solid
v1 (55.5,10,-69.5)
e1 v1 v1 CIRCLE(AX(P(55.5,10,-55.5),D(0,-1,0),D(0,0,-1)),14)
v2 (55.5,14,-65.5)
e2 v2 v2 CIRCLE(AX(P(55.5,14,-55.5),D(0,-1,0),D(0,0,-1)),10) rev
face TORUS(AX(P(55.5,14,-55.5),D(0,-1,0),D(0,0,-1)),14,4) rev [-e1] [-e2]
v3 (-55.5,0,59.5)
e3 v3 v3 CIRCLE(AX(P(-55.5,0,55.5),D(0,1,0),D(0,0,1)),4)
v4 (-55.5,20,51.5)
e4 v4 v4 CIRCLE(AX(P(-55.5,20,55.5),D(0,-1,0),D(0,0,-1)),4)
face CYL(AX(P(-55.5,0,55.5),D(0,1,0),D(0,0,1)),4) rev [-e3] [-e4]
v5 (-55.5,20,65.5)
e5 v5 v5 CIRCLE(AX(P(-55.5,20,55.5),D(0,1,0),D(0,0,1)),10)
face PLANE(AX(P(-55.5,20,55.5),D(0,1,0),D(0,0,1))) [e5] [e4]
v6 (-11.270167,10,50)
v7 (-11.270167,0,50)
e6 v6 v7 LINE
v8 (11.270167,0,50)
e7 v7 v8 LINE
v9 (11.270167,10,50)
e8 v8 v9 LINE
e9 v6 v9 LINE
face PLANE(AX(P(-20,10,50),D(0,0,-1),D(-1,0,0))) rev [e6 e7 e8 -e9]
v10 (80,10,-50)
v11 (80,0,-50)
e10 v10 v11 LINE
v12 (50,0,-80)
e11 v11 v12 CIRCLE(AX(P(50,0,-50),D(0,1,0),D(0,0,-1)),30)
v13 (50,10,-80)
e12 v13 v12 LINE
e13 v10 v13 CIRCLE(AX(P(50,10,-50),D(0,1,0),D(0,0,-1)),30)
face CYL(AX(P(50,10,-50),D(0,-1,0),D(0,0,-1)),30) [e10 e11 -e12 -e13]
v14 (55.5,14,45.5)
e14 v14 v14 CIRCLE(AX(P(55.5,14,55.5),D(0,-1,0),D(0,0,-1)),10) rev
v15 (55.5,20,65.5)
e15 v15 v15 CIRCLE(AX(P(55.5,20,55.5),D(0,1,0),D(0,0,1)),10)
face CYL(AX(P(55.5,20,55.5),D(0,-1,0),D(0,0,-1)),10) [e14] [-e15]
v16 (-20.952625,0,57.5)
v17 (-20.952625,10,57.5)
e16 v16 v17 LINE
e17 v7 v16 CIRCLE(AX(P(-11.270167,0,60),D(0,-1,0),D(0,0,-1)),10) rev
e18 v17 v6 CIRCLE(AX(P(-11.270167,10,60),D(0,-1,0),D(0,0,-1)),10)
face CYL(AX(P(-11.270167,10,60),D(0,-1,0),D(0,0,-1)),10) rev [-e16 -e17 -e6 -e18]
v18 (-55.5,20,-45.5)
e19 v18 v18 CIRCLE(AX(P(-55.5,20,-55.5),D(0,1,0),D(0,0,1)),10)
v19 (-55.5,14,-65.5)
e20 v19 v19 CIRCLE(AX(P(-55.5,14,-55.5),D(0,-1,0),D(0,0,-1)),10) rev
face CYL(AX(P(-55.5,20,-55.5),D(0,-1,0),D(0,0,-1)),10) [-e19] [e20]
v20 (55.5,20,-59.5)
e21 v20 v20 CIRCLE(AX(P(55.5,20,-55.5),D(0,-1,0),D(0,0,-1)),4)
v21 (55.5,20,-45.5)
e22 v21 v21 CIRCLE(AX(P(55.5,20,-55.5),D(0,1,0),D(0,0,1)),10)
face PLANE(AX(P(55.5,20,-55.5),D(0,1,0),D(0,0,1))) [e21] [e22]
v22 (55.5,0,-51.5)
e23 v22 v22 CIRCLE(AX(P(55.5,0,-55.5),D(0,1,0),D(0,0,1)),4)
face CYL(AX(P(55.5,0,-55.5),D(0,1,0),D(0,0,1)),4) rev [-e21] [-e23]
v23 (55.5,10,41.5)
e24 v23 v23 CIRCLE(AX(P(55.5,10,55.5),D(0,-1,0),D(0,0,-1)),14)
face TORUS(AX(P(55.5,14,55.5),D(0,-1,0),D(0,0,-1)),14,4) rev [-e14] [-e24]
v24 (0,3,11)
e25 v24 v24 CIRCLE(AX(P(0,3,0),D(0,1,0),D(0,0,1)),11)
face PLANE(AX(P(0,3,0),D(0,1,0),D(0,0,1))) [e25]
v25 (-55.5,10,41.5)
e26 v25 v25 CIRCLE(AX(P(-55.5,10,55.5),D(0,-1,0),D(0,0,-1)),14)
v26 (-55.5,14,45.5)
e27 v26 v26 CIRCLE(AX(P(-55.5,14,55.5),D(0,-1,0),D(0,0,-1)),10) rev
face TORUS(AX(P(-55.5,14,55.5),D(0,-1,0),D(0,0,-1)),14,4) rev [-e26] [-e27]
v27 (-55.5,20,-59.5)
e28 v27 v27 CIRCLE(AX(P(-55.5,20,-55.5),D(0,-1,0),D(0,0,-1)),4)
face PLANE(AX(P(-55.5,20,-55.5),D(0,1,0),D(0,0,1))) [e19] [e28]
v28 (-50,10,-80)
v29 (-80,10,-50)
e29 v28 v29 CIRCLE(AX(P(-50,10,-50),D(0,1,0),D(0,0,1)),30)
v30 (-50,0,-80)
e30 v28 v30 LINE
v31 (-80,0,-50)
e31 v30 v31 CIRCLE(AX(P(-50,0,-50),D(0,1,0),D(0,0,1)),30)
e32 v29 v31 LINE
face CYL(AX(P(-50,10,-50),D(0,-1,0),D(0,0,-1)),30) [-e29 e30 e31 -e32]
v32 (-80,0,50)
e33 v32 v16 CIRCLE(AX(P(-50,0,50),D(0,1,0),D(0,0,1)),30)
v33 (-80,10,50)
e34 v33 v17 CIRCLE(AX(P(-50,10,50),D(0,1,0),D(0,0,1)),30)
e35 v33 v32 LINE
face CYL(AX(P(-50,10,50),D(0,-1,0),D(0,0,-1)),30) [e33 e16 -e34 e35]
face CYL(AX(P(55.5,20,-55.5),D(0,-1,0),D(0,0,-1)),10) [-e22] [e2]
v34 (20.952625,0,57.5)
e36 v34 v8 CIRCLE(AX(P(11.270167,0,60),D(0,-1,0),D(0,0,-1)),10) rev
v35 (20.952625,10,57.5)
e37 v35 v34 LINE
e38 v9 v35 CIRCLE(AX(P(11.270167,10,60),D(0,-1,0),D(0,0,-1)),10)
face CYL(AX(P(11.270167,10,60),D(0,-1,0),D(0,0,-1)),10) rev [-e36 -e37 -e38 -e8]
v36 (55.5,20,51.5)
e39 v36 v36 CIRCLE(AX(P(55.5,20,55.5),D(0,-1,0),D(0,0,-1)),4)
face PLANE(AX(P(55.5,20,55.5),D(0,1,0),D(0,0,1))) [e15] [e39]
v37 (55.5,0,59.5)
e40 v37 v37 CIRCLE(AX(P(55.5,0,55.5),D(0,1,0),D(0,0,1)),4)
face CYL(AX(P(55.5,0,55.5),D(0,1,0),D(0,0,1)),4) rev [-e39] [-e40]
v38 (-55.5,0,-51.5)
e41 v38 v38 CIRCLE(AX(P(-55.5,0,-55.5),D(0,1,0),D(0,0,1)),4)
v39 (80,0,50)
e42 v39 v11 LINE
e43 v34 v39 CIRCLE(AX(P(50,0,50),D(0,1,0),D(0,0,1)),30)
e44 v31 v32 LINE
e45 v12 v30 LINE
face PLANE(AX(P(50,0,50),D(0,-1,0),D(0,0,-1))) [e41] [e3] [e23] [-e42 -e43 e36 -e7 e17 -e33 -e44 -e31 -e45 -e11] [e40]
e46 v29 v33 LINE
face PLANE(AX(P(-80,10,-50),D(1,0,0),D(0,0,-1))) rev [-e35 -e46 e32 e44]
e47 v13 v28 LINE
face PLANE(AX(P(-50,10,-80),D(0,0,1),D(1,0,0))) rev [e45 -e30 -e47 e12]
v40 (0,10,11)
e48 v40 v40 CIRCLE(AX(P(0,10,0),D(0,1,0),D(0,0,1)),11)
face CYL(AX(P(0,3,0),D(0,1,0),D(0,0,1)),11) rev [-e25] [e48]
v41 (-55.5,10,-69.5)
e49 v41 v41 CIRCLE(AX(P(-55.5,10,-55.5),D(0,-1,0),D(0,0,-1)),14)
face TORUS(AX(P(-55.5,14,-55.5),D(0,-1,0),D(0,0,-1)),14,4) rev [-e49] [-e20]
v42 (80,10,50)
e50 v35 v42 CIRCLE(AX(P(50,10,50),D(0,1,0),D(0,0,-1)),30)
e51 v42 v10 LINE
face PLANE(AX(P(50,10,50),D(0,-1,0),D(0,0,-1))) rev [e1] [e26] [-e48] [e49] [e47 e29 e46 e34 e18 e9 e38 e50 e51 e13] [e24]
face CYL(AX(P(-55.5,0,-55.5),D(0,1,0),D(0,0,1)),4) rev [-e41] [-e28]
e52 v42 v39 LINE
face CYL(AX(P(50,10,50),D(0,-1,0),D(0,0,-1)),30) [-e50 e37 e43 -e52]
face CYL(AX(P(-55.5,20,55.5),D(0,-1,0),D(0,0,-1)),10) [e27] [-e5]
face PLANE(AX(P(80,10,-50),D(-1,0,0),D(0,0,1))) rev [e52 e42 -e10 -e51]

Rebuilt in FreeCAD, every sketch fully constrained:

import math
import FreeCAD as App
import Part
import Sketcher

V = App.Vector
Q = App.Units.Quantity


def edges_at(feature, points):
    """Names of the edges that pass closest to the given points."""
    edges = feature.Shape.Edges
    near = lambda p: min(range(len(edges)), key=lambda i: edges[i].distToShape(Part.Vertex(*p))[0])
    return sorted({f"Edge{near(p) + 1}" for p in points})

doc = App.newDocument("Part")
body = doc.addObject("PartDesign::Body", "Body")

# Sketch on XZ plane
sketch1 = body.newObject("Sketcher::SketchObject", "Sketch")
sketch1.AttachmentSupport = (doc.getObject("XZ_Plane"), [""])
sketch1.MapMode = "FlatFace"
sketch1.addGeometry([
    Part.LineSegment(V(-20, 50, 0), V(20, 50, 0)),  # 0
    Part.ArcOfCircle(Part.Circle(V(50, 50, 0), V(0, 0, 1), 30), math.radians(90), math.radians(180)),  # 1
    Part.ArcOfCircle(Part.Circle(V(50, 50, 0), V(0, 0, 1), 30), math.radians(0), math.radians(90)),  # 2
    Part.LineSegment(V(80, 50, 0), V(80, -50, 0)),  # 3
    Part.ArcOfCircle(Part.Circle(V(50, -50, 0), V(0, 0, 1), 30), math.radians(-90), math.radians(0)),  # 4
    Part.LineSegment(V(50, -80, 0), V(-50, -80, 0)),  # 5
    Part.ArcOfCircle(Part.Circle(V(-50, -50, 0), V(0, 0, 1), 30), math.radians(180), math.radians(270)),  # 6
    Part.LineSegment(V(-80, -50, 0), V(-80, 50, 0)),  # 7
    Part.ArcOfCircle(Part.Circle(V(-50, 50, 0), V(0, 0, 1), 30), math.radians(90), math.radians(180)),  # 8
    Part.ArcOfCircle(Part.Circle(V(-50, 50, 0), V(0, 0, 1), 30), math.radians(0), math.radians(90)),  # 9
], False)
sketch1.addConstraint([
    Sketcher.Constraint("Coincident", 0, 2, 1, 2),
    Sketcher.Constraint("Tangent", 1, 1, 2, 2),
    Sketcher.Constraint("Tangent", 2, 1, 3, 1),
    Sketcher.Constraint("Tangent", 3, 2, 4, 2),
    Sketcher.Constraint("Tangent", 4, 1, 5, 1),
    Sketcher.Constraint("Tangent", 5, 2, 6, 2),
    Sketcher.Constraint("Tangent", 6, 1, 7, 1),
    Sketcher.Constraint("Tangent", 7, 2, 8, 2),
    Sketcher.Constraint("Tangent", 8, 1, 9, 2),
    Sketcher.Constraint("Coincident", 9, 1, 0, 1),
    Sketcher.Constraint("Horizontal", 0),
    Sketcher.Constraint("Vertical", 3),
    Sketcher.Constraint("Horizontal", 5),
    Sketcher.Constraint("Vertical", 7),
    Sketcher.Constraint("Equal", 1, 2),
    Sketcher.Constraint("Equal", 2, 4),
    Sketcher.Constraint("Equal", 4, 6),
    Sketcher.Constraint("Equal", 6, 8),
    Sketcher.Constraint("Equal", 8, 9),
    Sketcher.Constraint("Symmetric", 1, 3, 6, 3, -1, 1),
    Sketcher.Constraint("Symmetric", 4, 1, 8, 1, -1, 1),
    Sketcher.Constraint("Horizontal", 9, 3, 0, 2),
    Sketcher.Constraint("Vertical", 4, 3, 1, 1),
    Sketcher.Constraint("Equal", 5, 3),
    Sketcher.Constraint("Radius", 1, Q("30 mm")),
    Sketcher.Constraint("DistanceX", 0, 1, 0, 2, Q("40 mm")),
])
pad1 = body.newObject("PartDesign::Pad", "Pad")
pad1.Profile = sketch1
pad1.Length = 10
pad1.Reversed = True
doc.recompute()

fillet = body.newObject("PartDesign::Fillet", "Fillet")
fillet.Base = (pad1, edges_at(pad1, [(20, 5, 50), (-20, 5, 50)]))
fillet.Radius = 10

# Sketch on XZ plane
sketch2 = body.newObject("Sketcher::SketchObject", "Sketch001")
sketch2.AttachmentSupport = (doc.getObject("XZ_Plane"), [""])
sketch2.MapMode = "FlatFace"
sketch2.AttachmentOffset = App.Placement(V(0, 0, -10), App.Rotation())
sketch2.addGeometry([
    Part.Circle(V(-55.5, -55.5, 0), V(0, 0, 1), 4),
    Part.Circle(V(55.5, -55.5, 0), V(0, 0, 1), 4),
    Part.Circle(V(-55.5, 55.5, 0), V(0, 0, 1), 4),
    Part.Circle(V(55.5, 55.5, 0), V(0, 0, 1), 4),
], False)
sketch2.addConstraint([
    Sketcher.Constraint("Equal", 0, 1),
    Sketcher.Constraint("Equal", 1, 2),
    Sketcher.Constraint("Equal", 2, 3),
    Sketcher.Constraint("Symmetric", 1, 3, 2, 3, -1, 1),
    Sketcher.Constraint("Symmetric", 0, 3, 3, 3, -1, 1),
    Sketcher.Constraint("Symmetric", 0, 3, 1, 3, -2),
    Sketcher.Constraint("Diameter", 0, Q("8 mm")),
    Sketcher.Constraint("DistanceX", 0, 3, 1, 3, Q("111 mm")),
    Sketcher.Constraint("DistanceY", 0, 3, 2, 3, Q("111 mm")),
])
pocket1 = body.newObject("PartDesign::Pocket", "Pocket")
pocket1.Profile = sketch2
pocket1.Type = "ThroughAll"
pocket1.Reversed = True

# Sketch on XZ plane
sketch3 = body.newObject("Sketcher::SketchObject", "Sketch002")
sketch3.AttachmentSupport = (doc.getObject("XZ_Plane"), [""])
sketch3.MapMode = "FlatFace"
sketch3.AttachmentOffset = App.Placement(V(0, 0, -10), App.Rotation())
sketch3.addGeometry([
    Part.Circle(V(-56, -56, 0), V(0, 0, 1), 10),
    Part.Circle(V(56, -56, 0), V(0, 0, 1), 10),
    Part.Circle(V(-56, 56, 0), V(0, 0, 1), 10),
    Part.Circle(V(56, 56, 0), V(0, 0, 1), 10),
], False)
sketch3.addConstraint([
    Sketcher.Constraint("Equal", 0, 1),
    Sketcher.Constraint("Equal", 1, 2),
    Sketcher.Constraint("Equal", 2, 3),
    Sketcher.Constraint("Symmetric", 1, 3, 2, 3, -1, 1),
    Sketcher.Constraint("Symmetric", 0, 3, 3, 3, -1, 1),
    Sketcher.Constraint("Symmetric", 0, 3, 1, 3, -2),
    Sketcher.Constraint("Diameter", 0, Q("20 mm")),
    Sketcher.Constraint("DistanceX", 0, 3, 1, 3, Q("111 mm")),
    Sketcher.Constraint("DistanceY", 0, 3, 2, 3, Q("111 mm")),
])
pad2 = body.newObject("PartDesign::Pad", "Pad001")
pad2.Profile = sketch3
pad2.Length = 10
pad2.Reversed = True

# Sketch on XZ plane
sketch4 = body.newObject("Sketcher::SketchObject", "Sketch003")
sketch4.AttachmentSupport = (doc.getObject("XZ_Plane"), [""])
sketch4.MapMode = "FlatFace"
sketch4.AttachmentOffset = App.Placement(V(0, 0, -10), App.Rotation())
sketch4.addGeometry([
    Part.Circle(V(-55.5, -55.5, 0), V(0, 0, 1), 4),
    Part.Circle(V(-55.5, 55.5, 0), V(0, 0, 1), 4),
    Part.Circle(V(55.5, 55.5, 0), V(0, 0, 1), 4),
    Part.Circle(V(55.5, -55.5, 0), V(0, 0, 1), 4),
], False)
sketch4.addConstraint([
    Sketcher.Constraint("Equal", 0, 1),
    Sketcher.Constraint("Equal", 1, 2),
    Sketcher.Constraint("Equal", 2, 3),
    Sketcher.Constraint("Symmetric", 0, 3, 2, 3, -1, 1),
    Sketcher.Constraint("Symmetric", 1, 3, 3, 3, -1, 1),
    Sketcher.Constraint("Symmetric", 1, 3, 2, 3, -2),
    Sketcher.Constraint("Diameter", 0, Q("8 mm")),
    Sketcher.Constraint("DistanceY", 0, 3, 1, 3, Q("111 mm")),
    Sketcher.Constraint("DistanceX", 1, 3, 2, 3, Q("111 mm")),
])
pocket2 = body.newObject("PartDesign::Pocket", "Pocket001")
pocket2.Profile = sketch4
pocket2.Type = "ThroughAll"
doc.recompute()

fillet2 = body.newObject("PartDesign::Fillet", "Fillet001")
fillet2.Base = (pocket2, edges_at(pocket2, [
    (-55.5, 10, -45.5),
    (-55.5, 10, 65.5),
    (55.5, 10, 65.5),
    (55.5, 10, -45.5),
]))
fillet2.Radius = 4

# Sketch on XZ plane
sketch5 = body.newObject("Sketcher::SketchObject", "Sketch004")
sketch5.AttachmentSupport = (doc.getObject("XZ_Plane"), [""])
sketch5.MapMode = "FlatFace"
sketch5.AttachmentOffset = App.Placement(V(0, 0, -10), App.Rotation())
sketch5.addGeometry(Part.Circle(V(0, 0, 0), V(0, 0, 1), 11), False)
sketch5.addConstraint([
    Sketcher.Constraint("Coincident", 0, 3, -1, 1),
    Sketcher.Constraint("Diameter", 0, Q("22 mm")),
])
pocket3 = body.newObject("PartDesign::Pocket", "Pocket002")
pocket3.Profile = sketch5
pocket3.Length = 7
pocket3.Reversed = True

doc.recompute()
